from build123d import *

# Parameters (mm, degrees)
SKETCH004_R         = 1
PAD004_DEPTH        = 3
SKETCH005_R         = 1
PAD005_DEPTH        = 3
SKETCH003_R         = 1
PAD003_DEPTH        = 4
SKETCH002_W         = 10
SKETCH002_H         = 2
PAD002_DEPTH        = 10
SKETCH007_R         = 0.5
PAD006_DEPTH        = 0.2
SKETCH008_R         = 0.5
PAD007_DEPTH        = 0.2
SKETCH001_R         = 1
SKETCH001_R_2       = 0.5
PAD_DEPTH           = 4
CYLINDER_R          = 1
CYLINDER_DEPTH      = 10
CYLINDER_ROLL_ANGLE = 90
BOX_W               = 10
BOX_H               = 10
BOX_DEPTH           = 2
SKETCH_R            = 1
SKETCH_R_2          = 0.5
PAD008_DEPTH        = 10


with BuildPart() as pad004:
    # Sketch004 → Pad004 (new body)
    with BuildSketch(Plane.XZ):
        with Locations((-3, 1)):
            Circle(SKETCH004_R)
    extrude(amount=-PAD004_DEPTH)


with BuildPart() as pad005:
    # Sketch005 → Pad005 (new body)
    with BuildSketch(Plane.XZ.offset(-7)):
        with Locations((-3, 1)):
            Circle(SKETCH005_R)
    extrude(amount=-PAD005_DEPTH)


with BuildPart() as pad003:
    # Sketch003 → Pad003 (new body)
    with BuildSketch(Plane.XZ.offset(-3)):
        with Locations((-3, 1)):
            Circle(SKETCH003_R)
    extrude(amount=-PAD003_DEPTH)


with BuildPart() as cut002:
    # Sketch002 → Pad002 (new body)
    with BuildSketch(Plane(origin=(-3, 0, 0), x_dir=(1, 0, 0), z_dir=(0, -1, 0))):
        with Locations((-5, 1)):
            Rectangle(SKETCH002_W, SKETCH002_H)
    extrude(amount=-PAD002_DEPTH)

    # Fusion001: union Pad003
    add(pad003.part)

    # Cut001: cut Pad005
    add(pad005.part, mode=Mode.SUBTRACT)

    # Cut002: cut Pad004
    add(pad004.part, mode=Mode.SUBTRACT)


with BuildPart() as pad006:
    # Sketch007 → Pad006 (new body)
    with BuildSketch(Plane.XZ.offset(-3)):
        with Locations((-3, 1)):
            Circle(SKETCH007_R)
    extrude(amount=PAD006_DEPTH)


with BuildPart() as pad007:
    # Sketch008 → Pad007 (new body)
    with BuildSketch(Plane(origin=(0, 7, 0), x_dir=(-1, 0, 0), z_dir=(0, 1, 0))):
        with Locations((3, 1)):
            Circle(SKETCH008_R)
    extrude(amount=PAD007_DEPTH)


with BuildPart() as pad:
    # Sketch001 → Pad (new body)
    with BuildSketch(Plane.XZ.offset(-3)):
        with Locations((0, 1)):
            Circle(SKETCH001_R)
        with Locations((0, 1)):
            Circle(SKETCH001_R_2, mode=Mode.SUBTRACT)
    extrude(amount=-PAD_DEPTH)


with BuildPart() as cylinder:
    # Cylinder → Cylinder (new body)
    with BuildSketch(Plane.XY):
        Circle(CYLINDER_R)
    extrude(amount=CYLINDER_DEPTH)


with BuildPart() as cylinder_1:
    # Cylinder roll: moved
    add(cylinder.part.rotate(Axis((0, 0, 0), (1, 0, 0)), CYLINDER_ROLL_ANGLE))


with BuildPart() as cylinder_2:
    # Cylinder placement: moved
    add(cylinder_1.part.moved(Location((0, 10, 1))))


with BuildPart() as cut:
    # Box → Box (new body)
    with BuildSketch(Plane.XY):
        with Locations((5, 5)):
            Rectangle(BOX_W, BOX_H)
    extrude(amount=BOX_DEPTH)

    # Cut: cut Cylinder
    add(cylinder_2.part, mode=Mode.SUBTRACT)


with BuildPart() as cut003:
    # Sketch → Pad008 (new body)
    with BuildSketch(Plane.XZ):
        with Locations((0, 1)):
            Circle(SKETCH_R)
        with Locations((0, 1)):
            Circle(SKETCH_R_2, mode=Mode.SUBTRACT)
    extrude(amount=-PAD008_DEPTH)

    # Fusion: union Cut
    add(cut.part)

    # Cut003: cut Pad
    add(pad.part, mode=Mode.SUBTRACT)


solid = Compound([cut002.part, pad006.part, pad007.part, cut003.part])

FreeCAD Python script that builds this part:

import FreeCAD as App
import Part
import Sketcher

V = App.Vector

doc = App.newDocument("Part")
params = doc.addObject("Spreadsheet::Sheet", "Params")
for row, (alias, value) in enumerate([
    ("sketch1_diameter", "2 mm"),
    ("pad1_length", "3 mm"),
    ("sketch2_diameter", "2 mm"),
    ("pad2_length", "3 mm"),
    ("sketch3_diameter", "2 mm"),
    ("pad3_length", "4 mm"),
    ("sketch4_width", "10 mm"),
    ("sketch4_height", "2 mm"),
    ("pad4_length", "10 mm"),
    ("sketch5_diameter", "1 mm"),
    ("pad5_length", "0.2 mm"),
    ("sketch6_diameter", "1 mm"),
    ("pad6_length", "0.2 mm"),
    ("sketch7_diameter", "2 mm"),
    ("sketch7_diameter2", "1 mm"),
    ("pad7_length", "4 mm"),
    ("sketch8_diameter", "2 mm"),
    ("pad8_length", "10 mm"),
    ("sketch9_width", "10 mm"),
    ("pad9_length", "2 mm"),
    ("sketch10_diameter", "2 mm"),
    ("sketch10_diameter2", "1 mm"),
    ("pad10_length", "10 mm"),
], start=1):
    params.set(f"A{row}", alias)
    params.set(f"B{row}", "=" + value)
    params.setAlias(f"B{row}", alias)

body = doc.addObject("PartDesign::Body", "Body")

sketch1 = doc.addObject("Sketcher::SketchObject", "Sketch")
body.addObject(sketch1)
sketch1.AttachmentSupport = (doc.XZ_Plane, [""])
sketch1.MapMode = "FlatFace"
sketch1.addGeometry(Part.Circle(V(-3, 1, 0), V(0, 0, 1), 1), False)
sketch1.addConstraint(Sketcher.Constraint("Diameter", 0, 2.0))
sketch1.addConstraint(Sketcher.Constraint("DistanceX", 0, 3, -1, 1, 3.0))
sketch1.addConstraint(Sketcher.Constraint("DistanceY", -1, 1, 0, 3, 1.0))
sketch1.setExpression("Constraints[0]", "Params.sketch1_diameter")
pad1 = doc.addObject("PartDesign::Pad", "Pad")
body.addObject(pad1)
pad1.Profile = sketch1
pad1.setExpression("Length", "Params.pad1_length")
pad1.Reversed = True
body2 = doc.addObject("PartDesign::Body", "Body001")

sketch2 = doc.addObject("Sketcher::SketchObject", "Sketch001")
body2.addObject(sketch2)
sketch2.AttachmentSupport = (doc.getObject("XZ_Plane001"), [""])
sketch2.MapMode = "FlatFace"
sketch2.AttachmentOffset = App.Placement(V(0, 0, -7), App.Rotation())
sketch2.addGeometry(Part.Circle(V(-3, 1, 0), V(0, 0, 1), 1), False)
sketch2.addConstraint(Sketcher.Constraint("Diameter", 0, 2.0))
sketch2.addConstraint(Sketcher.Constraint("DistanceX", 0, 3, -1, 1, 3.0))
sketch2.addConstraint(Sketcher.Constraint("DistanceY", -1, 1, 0, 3, 1.0))
sketch2.setExpression("Constraints[0]", "Params.sketch2_diameter")
pad2 = doc.addObject("PartDesign::Pad", "Pad001")
body2.addObject(pad2)
pad2.Profile = sketch2
pad2.setExpression("Length", "Params.pad2_length")
pad2.Reversed = True
body3 = doc.addObject("PartDesign::Body", "Body002")

sketch3 = doc.addObject("Sketcher::SketchObject", "Sketch002")
body3.addObject(sketch3)
sketch3.AttachmentSupport = (doc.getObject("XZ_Plane002"), [""])
sketch3.MapMode = "FlatFace"
sketch3.AttachmentOffset = App.Placement(V(0, 0, -3), App.Rotation())
sketch3.addGeometry(Part.Circle(V(-3, 1, 0), V(0, 0, 1), 1), False)
sketch3.addConstraint(Sketcher.Constraint("Diameter", 0, 2.0))
sketch3.addConstraint(Sketcher.Constraint("DistanceX", 0, 3, -1, 1, 3.0))
sketch3.addConstraint(Sketcher.Constraint("DistanceY", -1, 1, 0, 3, 1.0))
sketch3.setExpression("Constraints[0]", "Params.sketch3_diameter")
pad3 = doc.addObject("PartDesign::Pad", "Pad002")
body3.addObject(pad3)
pad3.Profile = sketch3
pad3.setExpression("Length", "Params.pad3_length")
pad3.Reversed = True
body4 = doc.addObject("PartDesign::Body", "Body003")

sketch4 = doc.addObject("Sketcher::SketchObject", "Sketch003")
body4.addObject(sketch4)
sketch4.AttachmentSupport = (doc.getObject("XZ_Plane003"), [""])
sketch4.MapMode = "FlatFace"
sketch4.addGeometry(Part.LineSegment(V(-13, 2, 0), V(-13, 0, 0)), False)
sketch4.addGeometry(Part.LineSegment(V(-13, 0, 0), V(-3, 0, 0)), False)
sketch4.addGeometry(Part.LineSegment(V(-3, 0, 0), V(-3, 2, 0)), False)
sketch4.addGeometry(Part.LineSegment(V(-3, 2, 0), V(-13, 2, 0)), False)
sketch4.addConstraint(Sketcher.Constraint("Coincident", 0, 2, 1, 1))
sketch4.addConstraint(Sketcher.Constraint("Coincident", 1, 2, 2, 1))
sketch4.addConstraint(Sketcher.Constraint("Coincident", 2, 2, 3, 1))
sketch4.addConstraint(Sketcher.Constraint("Coincident", 3, 2, 0, 1))
sketch4.addConstraint(Sketcher.Constraint("Vertical", 0))
sketch4.addConstraint(Sketcher.Constraint("Horizontal", 1))
sketch4.addConstraint(Sketcher.Constraint("Vertical", 2))
sketch4.addConstraint(Sketcher.Constraint("Horizontal", 3))
sketch4.addConstraint(Sketcher.Constraint("PointOnObject", 0, 2, -1))
sketch4.addConstraint(Sketcher.Constraint("DistanceX", 1, 1, 1, 2, 10.0))
sketch4.addConstraint(Sketcher.Constraint("DistanceY", 0, 2, 0, 1, 2.0))
sketch4.addConstraint(Sketcher.Constraint("DistanceX", 0, 2, -1, 1, 13.0))
sketch4.setExpression("Constraints[9]", "Params.sketch4_width")
sketch4.setExpression("Constraints[10]", "Params.sketch4_height")
pad4 = doc.addObject("PartDesign::Pad", "Pad003")
body4.addObject(pad4)
pad4.Profile = sketch4
pad4.setExpression("Length", "Params.pad4_length")
pad4.Reversed = True
doc.recompute()

boolean = doc.addObject("PartDesign::Boolean", "Boolean")
body4.addObject(boolean)
boolean.Type = "Fuse"
boolean.addObjects([body3])
doc.recompute()

boolean2 = doc.addObject("PartDesign::Boolean", "Boolean001")
body4.addObject(boolean2)
boolean2.Type = "Cut"
boolean2.addObjects([body2])
doc.recompute()

boolean3 = doc.addObject("PartDesign::Boolean", "Boolean002")
body4.addObject(boolean3)
boolean3.Type = "Cut"
boolean3.addObjects([body])
body5 = doc.addObject("PartDesign::Body", "Body004")

sketch5 = doc.addObject("Sketcher::SketchObject", "Sketch004")
body5.addObject(sketch5)
sketch5.AttachmentSupport = (doc.getObject("XZ_Plane004"), [""])
sketch5.MapMode = "FlatFace"
sketch5.AttachmentOffset = App.Placement(V(0, 0, -3), App.Rotation())
sketch5.addGeometry(Part.Circle(V(-3, 1, 0), V(0, 0, 1), 0.5), False)
sketch5.addConstraint(Sketcher.Constraint("Diameter", 0, 1.0))
sketch5.addConstraint(Sketcher.Constraint("DistanceX", 0, 3, -1, 1, 3.0))
sketch5.addConstraint(Sketcher.Constraint("DistanceY", -1, 1, 0, 3, 1.0))
sketch5.setExpression("Constraints[0]", "Params.sketch5_diameter")
pad5 = doc.addObject("PartDesign::Pad", "Pad004")
body5.addObject(pad5)
pad5.Profile = sketch5
pad5.setExpression("Length", "Params.pad5_length")
body6 = doc.addObject("PartDesign::Body", "Body005")

sketch6 = doc.addObject("Sketcher::SketchObject", "Sketch005")
body6.addObject(sketch6)
sketch6.AttachmentSupport = (doc.getObject("XZ_Plane005"), [""])
sketch6.MapMode = "FlatFace"
sketch6.AttachmentOffset = App.Placement(V(0, 0, -7), App.Rotation())
sketch6.addGeometry(Part.Circle(V(-3, 1, 0), V(0, 0, 1), 0.5), False)
sketch6.addConstraint(Sketcher.Constraint("Diameter", 0, 1.0))
sketch6.addConstraint(Sketcher.Constraint("DistanceX", 0, 3, -1, 1, 3.0))
sketch6.addConstraint(Sketcher.Constraint("DistanceY", -1, 1, 0, 3, 1.0))
sketch6.setExpression("Constraints[0]", "Params.sketch6_diameter")
pad6 = doc.addObject("PartDesign::Pad", "Pad005")
body6.addObject(pad6)
pad6.Profile = sketch6
pad6.setExpression("Length", "Params.pad6_length")
pad6.Reversed = True
body7 = doc.addObject("PartDesign::Body", "Body006")

sketch7 = doc.addObject("Sketcher::SketchObject", "Sketch006")
body7.addObject(sketch7)
sketch7.AttachmentSupport = (doc.getObject("XZ_Plane006"), [""])
sketch7.MapMode = "FlatFace"
sketch7.AttachmentOffset = App.Placement(V(0, 0, -3), App.Rotation())
sketch7.addGeometry(Part.Circle(V(0, 1, 0), V(0, 0, 1), 1), False)
sketch7.addGeometry(Part.Circle(V(0, 1, 0), V(0, 0, 1), 0.5), False)
sketch7.addConstraint(Sketcher.Constraint("Coincident", 1, 3, 0, 3))
sketch7.addConstraint(Sketcher.Constraint("PointOnObject", 0, 3, -2))
sketch7.addConstraint(Sketcher.Constraint("Diameter", 0, 2.0))
sketch7.addConstraint(Sketcher.Constraint("Diameter", 1, 1.0))
sketch7.addConstraint(Sketcher.Constraint("DistanceY", -1, 1, 0, 3, 1.0))
sketch7.setExpression("Constraints[2]", "Params.sketch7_diameter")
sketch7.setExpression("Constraints[3]", "Params.sketch7_diameter2")
pad7 = doc.addObject("PartDesign::Pad", "Pad006")
body7.addObject(pad7)
pad7.Profile = sketch7
pad7.setExpression("Length", "Params.pad7_length")
pad7.Reversed = True
body8 = doc.addObject("PartDesign::Body", "Body007")

sketch8 = doc.addObject("Sketcher::SketchObject", "Sketch007")
body8.addObject(sketch8)
sketch8.AttachmentSupport = (doc.getObject("XY_Plane007"), [""])
sketch8.MapMode = "FlatFace"
sketch8.addGeometry(Part.Circle(V(0, 0, 0), V(0, 0, 1), 1), False)
sketch8.addConstraint(Sketcher.Constraint("Coincident", 0, 3, -1, 1))
sketch8.addConstraint(Sketcher.Constraint("Diameter", 0, 2.0))
sketch8.setExpression("Constraints[1]", "Params.sketch8_diameter")
pad8 = doc.addObject("PartDesign::Pad", "Pad007")
body8.addObject(pad8)
pad8.Profile = sketch8
pad8.setExpression("Length", "Params.pad8_length")
body9 = doc.addObject("PartDesign::Body", "Body008")
doc.recompute()

body8.Placement = App.Placement(V(0, 0, 0), App.Rotation(V(1, 0, 0), 90))
boolean4 = doc.addObject("PartDesign::Boolean", "Boolean003")
body9.addObject(boolean4)
boolean4.Type = "Fuse"
boolean4.addObjects([body8])
body10 = doc.addObject("PartDesign::Body", "Body009")
doc.recompute()

body9.Placement = App.Placement(V(0, 10, 1), App.Rotation(V(0, 0, 1), 0))
boolean5 = doc.addObject("PartDesign::Boolean", "Boolean004")
body10.addObject(boolean5)
boolean5.Type = "Fuse"
boolean5.addObjects([body9])
body11 = doc.addObject("PartDesign::Body", "Body010")

sketch9 = doc.addObject("Sketcher::SketchObject", "Sketch008")
body11.addObject(sketch9)
sketch9.AttachmentSupport = (doc.getObject("XY_Plane010"), [""])
sketch9.MapMode = "FlatFace"
sketch9.addGeometry(Part.LineSegment(V(0, 10, 0), V(0, 0, 0)), False)
sketch9.addGeometry(Part.LineSegment(V(0, 0, 0), V(10, 0, 0)), False)
sketch9.addGeometry(Part.LineSegment(V(10, 0, 0), V(10, 10, 0)), False)
sketch9.addGeometry(Part.LineSegment(V(10, 10, 0), V(0, 10, 0)), False)
sketch9.addConstraint(Sketcher.Constraint("Coincident", 0, 2, 1, 1))
sketch9.addConstraint(Sketcher.Constraint("Coincident", 1, 2, 2, 1))
sketch9.addConstraint(Sketcher.Constraint("Coincident", 2, 2, 3, 1))
sketch9.addConstraint(Sketcher.Constraint("Coincident", 3, 2, 0, 1))
sketch9.addConstraint(Sketcher.Constraint("Vertical", 0))
sketch9.addConstraint(Sketcher.Constraint("Horizontal", 1))
sketch9.addConstraint(Sketcher.Constraint("Vertical", 2))
sketch9.addConstraint(Sketcher.Constraint("Horizontal", 3))
sketch9.addConstraint(Sketcher.Constraint("Coincident", 0, 2, -1, 1))
sketch9.addConstraint(Sketcher.Constraint("Equal", 3, 0))
sketch9.addConstraint(Sketcher.Constraint("DistanceX", 1, 1, 1, 2, 10.0))
sketch9.setExpression("Constraints[10]", "Params.sketch9_width")
pad9 = doc.addObject("PartDesign::Pad", "Pad008")
body11.addObject(pad9)
pad9.Profile = sketch9
pad9.setExpression("Length", "Params.pad9_length")
doc.recompute()

boolean6 = doc.addObject("PartDesign::Boolean", "Boolean005")
body11.addObject(boolean6)
boolean6.Type = "Cut"
boolean6.addObjects([body10])
body12 = doc.addObject("PartDesign::Body", "Body011")

sketch10 = doc.addObject("Sketcher::SketchObject", "Sketch009")
body12.addObject(sketch10)
sketch10.AttachmentSupport = (doc.getObject("XZ_Plane011"), [""])
sketch10.MapMode = "FlatFace"
sketch10.addGeometry(Part.Circle(V(0, 1, 0), V(0, 0, 1), 1), False)
sketch10.addGeometry(Part.Circle(V(0, 1, 0), V(0, 0, 1), 0.5), False)
sketch10.addConstraint(Sketcher.Constraint("Coincident", 1, 3, 0, 3))
sketch10.addConstraint(Sketcher.Constraint("PointOnObject", 0, 3, -2))
sketch10.addConstraint(Sketcher.Constraint("Diameter", 0, 2.0))
sketch10.addConstraint(Sketcher.Constraint("Diameter", 1, 1.0))
sketch10.addConstraint(Sketcher.Constraint("DistanceY", -1, 1, 0, 3, 1.0))
sketch10.setExpression("Constraints[2]", "Params.sketch10_diameter")
sketch10.setExpression("Constraints[3]", "Params.sketch10_diameter2")
pad10 = doc.addObject("PartDesign::Pad", "Pad009")
body12.addObject(pad10)
pad10.Profile = sketch10
pad10.setExpression("Length", "Params.pad10_length")
pad10.Reversed = True
doc.recompute()

boolean7 = doc.addObject("PartDesign::Boolean", "Boolean006")
body12.addObject(boolean7)
boolean7.Type = "Fuse"
boolean7.addObjects([body11])
doc.recompute()

boolean8 = doc.addObject("PartDesign::Boolean", "Boolean007")
body12.addObject(boolean8)
boolean8.Type = "Cut"
boolean8.addObjects([body7])

doc.recompute()
